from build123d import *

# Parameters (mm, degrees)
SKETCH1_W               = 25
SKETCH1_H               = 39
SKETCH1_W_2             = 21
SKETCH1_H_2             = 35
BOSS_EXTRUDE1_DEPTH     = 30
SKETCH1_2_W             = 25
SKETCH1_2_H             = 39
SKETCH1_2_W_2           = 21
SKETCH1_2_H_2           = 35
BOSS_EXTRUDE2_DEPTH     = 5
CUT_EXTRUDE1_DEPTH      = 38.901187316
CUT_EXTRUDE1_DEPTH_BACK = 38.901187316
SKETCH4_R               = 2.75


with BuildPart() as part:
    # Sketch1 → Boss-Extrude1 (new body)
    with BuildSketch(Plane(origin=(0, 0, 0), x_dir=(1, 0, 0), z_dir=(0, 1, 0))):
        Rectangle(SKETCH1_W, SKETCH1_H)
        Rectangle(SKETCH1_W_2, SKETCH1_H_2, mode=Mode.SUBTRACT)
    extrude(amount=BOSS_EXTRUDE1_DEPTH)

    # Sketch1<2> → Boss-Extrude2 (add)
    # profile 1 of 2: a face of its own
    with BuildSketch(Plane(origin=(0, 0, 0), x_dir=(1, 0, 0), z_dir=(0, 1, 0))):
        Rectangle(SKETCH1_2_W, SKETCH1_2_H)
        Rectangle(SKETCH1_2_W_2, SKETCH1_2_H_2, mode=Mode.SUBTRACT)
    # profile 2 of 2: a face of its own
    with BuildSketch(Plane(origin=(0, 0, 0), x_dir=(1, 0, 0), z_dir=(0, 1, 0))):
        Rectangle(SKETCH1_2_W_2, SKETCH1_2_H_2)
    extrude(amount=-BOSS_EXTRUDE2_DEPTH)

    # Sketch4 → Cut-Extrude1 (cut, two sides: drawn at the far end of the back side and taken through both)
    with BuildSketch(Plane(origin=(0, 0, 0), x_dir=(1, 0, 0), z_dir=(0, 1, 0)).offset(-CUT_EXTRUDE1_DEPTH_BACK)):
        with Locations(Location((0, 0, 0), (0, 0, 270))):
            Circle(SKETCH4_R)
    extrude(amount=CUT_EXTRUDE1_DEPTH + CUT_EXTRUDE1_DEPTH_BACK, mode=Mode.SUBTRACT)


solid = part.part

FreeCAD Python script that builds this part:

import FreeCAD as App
import Part
import Sketcher
from FreeCAD import Vector
Q = App.Units.Quantity

doc = App.newDocument("Part")
body = doc.addObject("PartDesign::Body", "Body")

# Sketch on XZ plane
sketch1 = body.newObject("Sketcher::SketchObject", "Sketch")
sketch1.AttachmentSupport = (doc.getObject("XZ_Plane"), [""])
sketch1.MapMode = "FlatFace"
sketch1.addGeometry(Part.LineSegment(Vector(-12, -20, 0), Vector(-12, 20, 0)), False)
sketch1.addGeometry(Part.LineSegment(Vector(-12, 20, 0), Vector(12, 20, 0)), False)
sketch1.addGeometry(Part.LineSegment(Vector(12, 20, 0), Vector(12, -20, 0)), False)
sketch1.addGeometry(Part.LineSegment(Vector(12, -20, 0), Vector(-12, -20, 0)), False)
sketch1.addGeometry(Part.LineSegment(Vector(10, 18, 0), Vector(-10, 18, 0)), False)
sketch1.addGeometry(Part.LineSegment(Vector(-10, 18, 0), Vector(-10, -18, 0)), False)
sketch1.addGeometry(Part.LineSegment(Vector(-10, -18, 0), Vector(10, -18, 0)), False)
sketch1.addGeometry(Part.LineSegment(Vector(10, -18, 0), Vector(10, 18, 0)), False)
sketch1.addConstraint(Sketcher.Constraint("Coincident", 0, 2, 1, 1))
sketch1.addConstraint(Sketcher.Constraint("Coincident", 1, 2, 2, 1))
sketch1.addConstraint(Sketcher.Constraint("Coincident", 2, 2, 3, 1))
sketch1.addConstraint(Sketcher.Constraint("Coincident", 3, 2, 0, 1))
sketch1.addConstraint(Sketcher.Constraint("Coincident", 4, 2, 5, 1))
sketch1.addConstraint(Sketcher.Constraint("Coincident", 5, 2, 6, 1))
sketch1.addConstraint(Sketcher.Constraint("Coincident", 6, 2, 7, 1))
sketch1.addConstraint(Sketcher.Constraint("Coincident", 7, 2, 4, 1))
sketch1.addConstraint(Sketcher.Constraint("Vertical", 0))
sketch1.addConstraint(Sketcher.Constraint("Horizontal", 1))
sketch1.addConstraint(Sketcher.Constraint("Vertical", 2))
sketch1.addConstraint(Sketcher.Constraint("Horizontal", 3))
sketch1.addConstraint(Sketcher.Constraint("Horizontal", 4))
sketch1.addConstraint(Sketcher.Constraint("Vertical", 5))
sketch1.addConstraint(Sketcher.Constraint("Horizontal", 6))
sketch1.addConstraint(Sketcher.Constraint("Vertical", 7))
sketch1.addConstraint(Sketcher.Constraint("Symmetric", 0, 2, 2, 2, -1, 1))
sketch1.addConstraint(Sketcher.Constraint("Symmetric", 4, 2, 6, 2, -1, 1))
sketch1.addConstraint(Sketcher.Constraint("DistanceX", 1, 1, 1, 2, Q("25 mm")))
sketch1.addConstraint(Sketcher.Constraint("DistanceX", 4, 2, 4, 1, Q("21 mm")))
sketch1.addConstraint(Sketcher.Constraint("DistanceY", 0, 1, 0, 2, Q("39 mm")))
sketch1.addConstraint(Sketcher.Constraint("DistanceY", 5, 2, 5, 1, Q("35 mm")))
pad1 = body.newObject("PartDesign::Pad", "Pad")
pad1.Profile = sketch1
pad1.Length = 30
pad1.Reversed = True

# Sketch on XZ plane
sketch2 = body.newObject("Sketcher::SketchObject", "Sketch001")
sketch2.AttachmentSupport = (doc.getObject("XZ_Plane"), [""])
sketch2.MapMode = "FlatFace"
sketch2.addGeometry(Part.LineSegment(Vector(-12, -20, 0), Vector(-12, 20, 0)), False)
sketch2.addGeometry(Part.LineSegment(Vector(-12, 20, 0), Vector(12, 20, 0)), False)
sketch2.addGeometry(Part.LineSegment(Vector(12, 20, 0), Vector(12, -20, 0)), False)
sketch2.addGeometry(Part.LineSegment(Vector(12, -20, 0), Vector(-12, -20, 0)), False)
sketch2.addConstraint(Sketcher.Constraint("Coincident", 0, 2, 1, 1))
sketch2.addConstraint(Sketcher.Constraint("Coincident", 1, 2, 2, 1))
sketch2.addConstraint(Sketcher.Constraint("Coincident", 2, 2, 3, 1))
sketch2.addConstraint(Sketcher.Constraint("Coincident", 3, 2, 0, 1))
sketch2.addConstraint(Sketcher.Constraint("Vertical", 0))
sketch2.addConstraint(Sketcher.Constraint("Horizontal", 1))
sketch2.addConstraint(Sketcher.Constraint("Vertical", 2))
sketch2.addConstraint(Sketcher.Constraint("Horizontal", 3))
sketch2.addConstraint(Sketcher.Constraint("Symmetric", 0, 2, 2, 2, -1, 1))
sketch2.addConstraint(Sketcher.Constraint("DistanceX", 1, 1, 1, 2, Q("25 mm")))
sketch2.addConstraint(Sketcher.Constraint("DistanceY", 0, 1, 0, 2, Q("39 mm")))
pad2 = body.newObject("PartDesign::Pad", "Pad001")
pad2.Profile = sketch2
pad2.Length = 5

# Sketch on XZ plane
sketch3 = body.newObject("Sketcher::SketchObject", "Sketch002")
sketch3.AttachmentSupport = (doc.getObject("XZ_Plane"), [""])
sketch3.MapMode = "FlatFace"
sketch3.addGeometry(Part.Circle(Vector(0, 0, 0), Vector(0, 0, 1), 2.8), False)
sketch3.addConstraint(Sketcher.Constraint("Coincident", 0, 3, -1, 1))
sketch3.addConstraint(Sketcher.Constraint("Diameter", 0, Q("5.5 mm")))
pocket1 = body.newObject("PartDesign::Pocket", "Pocket")
pocket1.Profile = sketch3
pocket1.Type = "ThroughAll"
pocket1.Midplane = True

doc.recompute()
